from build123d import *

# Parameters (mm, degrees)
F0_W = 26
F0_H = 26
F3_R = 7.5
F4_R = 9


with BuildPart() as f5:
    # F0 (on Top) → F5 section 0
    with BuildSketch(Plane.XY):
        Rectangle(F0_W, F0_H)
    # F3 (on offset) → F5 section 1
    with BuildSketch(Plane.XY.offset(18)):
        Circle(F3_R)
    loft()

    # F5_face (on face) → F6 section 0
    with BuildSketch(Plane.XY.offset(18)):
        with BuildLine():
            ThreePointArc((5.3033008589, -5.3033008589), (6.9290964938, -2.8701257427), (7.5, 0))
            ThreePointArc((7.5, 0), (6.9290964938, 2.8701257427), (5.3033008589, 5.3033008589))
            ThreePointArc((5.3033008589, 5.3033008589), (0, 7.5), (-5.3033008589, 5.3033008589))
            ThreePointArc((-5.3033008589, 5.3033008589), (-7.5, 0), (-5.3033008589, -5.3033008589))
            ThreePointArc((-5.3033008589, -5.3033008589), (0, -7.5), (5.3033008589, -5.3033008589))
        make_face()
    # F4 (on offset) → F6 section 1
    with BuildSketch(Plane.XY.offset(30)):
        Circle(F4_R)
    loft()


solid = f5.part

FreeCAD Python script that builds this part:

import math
import FreeCAD as App
import Part
import Sketcher
from FreeCAD import Vector
Q = App.Units.Quantity

doc = App.newDocument("Part")
body = doc.addObject("PartDesign::Body", "Body")

# Sketch on XY plane
sketch1 = body.newObject("Sketcher::SketchObject", "Sketch")
sketch1.AttachmentSupport = (doc.getObject("XY_Plane"), [""])
sketch1.MapMode = "FlatFace"
sketch1.addGeometry(Part.LineSegment(Vector(-13, 13, 0), Vector(-13, -13, 0)), False)
sketch1.addGeometry(Part.LineSegment(Vector(-13, -13, 0), Vector(13, -13, 0)), False)
sketch1.addGeometry(Part.LineSegment(Vector(13, -13, 0), Vector(13, 13, 0)), False)
sketch1.addGeometry(Part.LineSegment(Vector(13, 13, 0), Vector(-13, 13, 0)), False)
sketch1.addConstraint(Sketcher.Constraint("Coincident", 0, 2, 1, 1))
sketch1.addConstraint(Sketcher.Constraint("Coincident", 1, 2, 2, 1))
sketch1.addConstraint(Sketcher.Constraint("Coincident", 2, 2, 3, 1))
sketch1.addConstraint(Sketcher.Constraint("Coincident", 3, 2, 0, 1))
sketch1.addConstraint(Sketcher.Constraint("Vertical", 0))
sketch1.addConstraint(Sketcher.Constraint("Horizontal", 1))
sketch1.addConstraint(Sketcher.Constraint("Vertical", 2))
sketch1.addConstraint(Sketcher.Constraint("Horizontal", 3))
sketch1.addConstraint(Sketcher.Constraint("Symmetric", 0, 2, 2, 2, -1, 1))
sketch1.addConstraint(Sketcher.Constraint("Equal", 3, 0))
sketch1.addConstraint(Sketcher.Constraint("DistanceX", 1, 1, 1, 2, Q("26 mm")))

# Sketch on XY plane
sketch2 = body.newObject("Sketcher::SketchObject", "Sketch001")
sketch2.AttachmentSupport = (doc.getObject("XY_Plane"), [""])
sketch2.MapMode = "FlatFace"
sketch2.AttachmentOffset = App.Placement(Vector(0, 0, 18), App.Rotation())
sketch2.addGeometry(Part.Circle(Vector(0, 0, 0), Vector(0, 0, 1), 8), False)
sketch2.addConstraint(Sketcher.Constraint("Coincident", 0, 3, -1, 1))
sketch2.addConstraint(Sketcher.Constraint("Diameter", 0, Q("15 mm")))

additiveloft = body.newObject("PartDesign::AdditiveLoft", "AdditiveLoft")
additiveloft.Profile = sketch1
additiveloft.Sections = [sketch2]

# Sketch on XY plane
sketch3 = body.newObject("Sketcher::SketchObject", "Sketch002")
sketch3.AttachmentSupport = (doc.getObject("XY_Plane"), [""])
sketch3.MapMode = "FlatFace"
sketch3.AttachmentOffset = App.Placement(Vector(0, 0, 18), App.Rotation())
sketch3.addGeometry(Part.ArcOfCircle(Part.Circle(Vector(0, 0, 0), Vector(0, 0, 1), 8), math.radians(-45), math.radians(0)), False)
sketch3.addGeometry(Part.ArcOfCircle(Part.Circle(Vector(0, 0, 0), Vector(0, 0, 1), 8), math.radians(0), math.radians(45)), False)
sketch3.addGeometry(Part.ArcOfCircle(Part.Circle(Vector(0, 0, 0), Vector(0, 0, 1), 8), math.radians(45), math.radians(315)), False)
sketch3.addConstraint(Sketcher.Constraint("Tangent", 0, 2, 1, 1))
sketch3.addConstraint(Sketcher.Constraint("Tangent", 1, 2, 2, 1))
sketch3.addConstraint(Sketcher.Constraint("Tangent", 2, 2, 0, 1))
sketch3.addConstraint(Sketcher.Constraint("Coincident", 0, 3, -1, 1))
sketch3.addConstraint(Sketcher.Constraint("PointOnObject", 0, 2, -1))
sketch3.addConstraint(Sketcher.Constraint("Vertical", 1, 2, 2, 2))
sketch3.addConstraint(Sketcher.Constraint("Radius", 0, Q("7.5 mm")))
sketch3.addConstraint(Sketcher.Constraint("DistanceX", -1, 1, 1, 2, Q("5.303301 mm")))

# Sketch on XY plane
sketch4 = body.newObject("Sketcher::SketchObject", "Sketch003")
sketch4.AttachmentSupport = (doc.getObject("XY_Plane"), [""])
sketch4.MapMode = "FlatFace"
sketch4.AttachmentOffset = App.Placement(Vector(0, 0, 30), App.Rotation())
sketch4.addGeometry(Part.Circle(Vector(0, 0, 0), Vector(0, 0, 1), 9), False)
sketch4.addConstraint(Sketcher.Constraint("Coincident", 0, 3, -1, 1))
sketch4.addConstraint(Sketcher.Constraint("Diameter", 0, Q("18 mm")))

additiveloft2 = body.newObject("PartDesign::AdditiveLoft", "AdditiveLoft001")
additiveloft2.Profile = sketch3
additiveloft2.Sections = [sketch4]

doc.recompute()
